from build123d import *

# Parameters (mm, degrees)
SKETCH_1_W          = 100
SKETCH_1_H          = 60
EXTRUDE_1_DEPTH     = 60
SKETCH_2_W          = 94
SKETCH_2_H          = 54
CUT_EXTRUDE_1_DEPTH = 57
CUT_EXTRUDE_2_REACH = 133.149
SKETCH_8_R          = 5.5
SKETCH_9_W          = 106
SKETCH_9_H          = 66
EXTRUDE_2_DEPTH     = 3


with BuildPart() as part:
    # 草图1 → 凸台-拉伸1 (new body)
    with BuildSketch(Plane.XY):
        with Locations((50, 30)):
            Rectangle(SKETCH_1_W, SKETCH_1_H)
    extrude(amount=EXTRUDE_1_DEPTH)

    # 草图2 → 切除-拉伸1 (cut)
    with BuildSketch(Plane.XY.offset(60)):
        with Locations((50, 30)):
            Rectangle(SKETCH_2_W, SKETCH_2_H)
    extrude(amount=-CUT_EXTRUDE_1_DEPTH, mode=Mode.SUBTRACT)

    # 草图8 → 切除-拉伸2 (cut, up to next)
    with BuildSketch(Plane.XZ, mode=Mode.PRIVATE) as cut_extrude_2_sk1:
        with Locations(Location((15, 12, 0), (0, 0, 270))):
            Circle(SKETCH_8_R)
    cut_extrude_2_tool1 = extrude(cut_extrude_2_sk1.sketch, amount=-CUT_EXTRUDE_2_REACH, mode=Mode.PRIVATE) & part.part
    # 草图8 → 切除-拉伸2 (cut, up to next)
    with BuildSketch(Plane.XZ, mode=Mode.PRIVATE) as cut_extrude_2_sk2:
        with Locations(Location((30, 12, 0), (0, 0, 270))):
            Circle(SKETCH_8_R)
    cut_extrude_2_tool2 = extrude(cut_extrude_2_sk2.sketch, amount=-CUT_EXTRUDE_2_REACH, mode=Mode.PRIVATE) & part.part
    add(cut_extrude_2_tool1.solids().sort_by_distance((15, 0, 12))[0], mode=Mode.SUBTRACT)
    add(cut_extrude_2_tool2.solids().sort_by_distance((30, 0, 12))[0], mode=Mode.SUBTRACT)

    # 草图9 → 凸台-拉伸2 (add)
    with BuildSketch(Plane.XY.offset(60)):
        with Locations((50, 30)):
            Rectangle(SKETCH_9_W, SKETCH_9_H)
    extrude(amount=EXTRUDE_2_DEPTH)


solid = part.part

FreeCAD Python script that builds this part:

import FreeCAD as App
import Part
import Sketcher
Q = App.Units.Quantity

doc = App.newDocument("Part")
body = doc.addObject("PartDesign::Body", "Body")

# Sketch on XY plane
sketch1 = body.newObject("Sketcher::SketchObject", "Sketch")
sketch1.AttachmentSupport = (doc.getObject("XY_Plane"), [""])
sketch1.MapMode = "FlatFace"
sketch1.addGeometry(Part.LineSegment(App.Vector(0, 60, 0), App.Vector(0, 0, 0)), False)
sketch1.addGeometry(Part.LineSegment(App.Vector(0, 0, 0), App.Vector(100, 0, 0)), False)
sketch1.addGeometry(Part.LineSegment(App.Vector(100, 0, 0), App.Vector(100, 60, 0)), False)
sketch1.addGeometry(Part.LineSegment(App.Vector(100, 60, 0), App.Vector(0, 60, 0)), False)
sketch1.addConstraint(Sketcher.Constraint("Coincident", 0, 2, 1, 1))
sketch1.addConstraint(Sketcher.Constraint("Coincident", 1, 2, 2, 1))
sketch1.addConstraint(Sketcher.Constraint("Coincident", 2, 2, 3, 1))
sketch1.addConstraint(Sketcher.Constraint("Coincident", 3, 2, 0, 1))
sketch1.addConstraint(Sketcher.Constraint("Vertical", 0))
sketch1.addConstraint(Sketcher.Constraint("Horizontal", 1))
sketch1.addConstraint(Sketcher.Constraint("Vertical", 2))
sketch1.addConstraint(Sketcher.Constraint("Horizontal", 3))
sketch1.addConstraint(Sketcher.Constraint("Coincident", 0, 2, -1, 1))
sketch1.addConstraint(Sketcher.Constraint("DistanceX", 1, 1, 1, 2, Q("100 mm")))
sketch1.addConstraint(Sketcher.Constraint("DistanceY", 0, 2, 0, 1, Q("60 mm")))
pad1 = body.newObject("PartDesign::Pad", "Pad")
pad1.Profile = sketch1
pad1.Length = 60

# Sketch on XY plane
sketch2 = body.newObject("Sketcher::SketchObject", "Sketch001")
sketch2.AttachmentSupport = (doc.getObject("XY_Plane"), [""])
sketch2.MapMode = "FlatFace"
sketch2.AttachmentOffset = App.Placement(App.Vector(0, 0, 60), App.Rotation())
sketch2.addGeometry(Part.LineSegment(App.Vector(3, 57, 0), App.Vector(3, 3, 0)), False)
sketch2.addGeometry(Part.LineSegment(App.Vector(3, 3, 0), App.Vector(97, 3, 0)), False)
sketch2.addGeometry(Part.LineSegment(App.Vector(97, 3, 0), App.Vector(97, 57, 0)), False)
sketch2.addGeometry(Part.LineSegment(App.Vector(97, 57, 0), App.Vector(3, 57, 0)), False)
sketch2.addConstraint(Sketcher.Constraint("Coincident", 0, 2, 1, 1))
sketch2.addConstraint(Sketcher.Constraint("Coincident", 1, 2, 2, 1))
sketch2.addConstraint(Sketcher.Constraint("Coincident", 2, 2, 3, 1))
sketch2.addConstraint(Sketcher.Constraint("Coincident", 3, 2, 0, 1))
sketch2.addConstraint(Sketcher.Constraint("Vertical", 0))
sketch2.addConstraint(Sketcher.Constraint("Horizontal", 1))
sketch2.addConstraint(Sketcher.Constraint("Vertical", 2))
sketch2.addConstraint(Sketcher.Constraint("Horizontal", 3))
sketch2.addConstraint(Sketcher.Constraint("DistanceX", 1, 1, 1, 2, Q("94 mm")))
sketch2.addConstraint(Sketcher.Constraint("DistanceY", 0, 2, 0, 1, Q("54 mm")))
sketch2.addConstraint(Sketcher.Constraint("DistanceX", -1, 1, 0, 2, Q("3 mm")))
sketch2.addConstraint(Sketcher.Constraint("DistanceY", -1, 1, 0, 2, Q("3 mm")))
pocket1 = body.newObject("PartDesign::Pocket", "Pocket")
pocket1.Profile = sketch2
pocket1.Length = 57

# Sketch on XZ plane
sketch3 = body.newObject("Sketcher::SketchObject", "Sketch002")
sketch3.AttachmentSupport = (doc.getObject("XZ_Plane"), [""])
sketch3.MapMode = "FlatFace"
sketch3.addGeometry(Part.Circle(App.Vector(15, 12, 0), App.Vector(0, 0, 1), 5.5), False)
sketch3.addConstraint(Sketcher.Constraint("Diameter", 0, Q("11 mm")))
sketch3.addConstraint(Sketcher.Constraint("DistanceX", -1, 1, 0, 3, Q("15 mm")))
sketch3.addConstraint(Sketcher.Constraint("DistanceY", -1, 1, 0, 3, Q("12 mm")))
pocket2 = body.newObject("PartDesign::Pocket", "Pocket001")
pocket2.Profile = sketch3
pocket2.Type = "UpToFirst"

# Sketch on XZ plane
sketch4 = body.newObject("Sketcher::SketchObject", "Sketch003")
sketch4.AttachmentSupport = (doc.getObject("XZ_Plane"), [""])
sketch4.MapMode = "FlatFace"
sketch4.addGeometry(Part.Circle(App.Vector(30, 12, 0), App.Vector(0, 0, 1), 5.5), False)
sketch4.addConstraint(Sketcher.Constraint("Diameter", 0, Q("11 mm")))
sketch4.addConstraint(Sketcher.Constraint("DistanceX", -1, 1, 0, 3, Q("30 mm")))
sketch4.addConstraint(Sketcher.Constraint("DistanceY", -1, 1, 0, 3, Q("12 mm")))
pocket3 = body.newObject("PartDesign::Pocket", "Pocket002")
pocket3.Profile = sketch4
pocket3.Type = "UpToFirst"

# Sketch on XY plane
sketch5 = body.newObject("Sketcher::SketchObject", "Sketch004")
sketch5.AttachmentSupport = (doc.getObject("XY_Plane"), [""])
sketch5.MapMode = "FlatFace"
sketch5.AttachmentOffset = App.Placement(App.Vector(0, 0, 60), App.Rotation())
sketch5.addGeometry(Part.LineSegment(App.Vector(-3, 63, 0), App.Vector(-3, -3, 0)), False)
sketch5.addGeometry(Part.LineSegment(App.Vector(-3, -3, 0), App.Vector(103, -3, 0)), False)
sketch5.addGeometry(Part.LineSegment(App.Vector(103, -3, 0), App.Vector(103, 63, 0)), False)
sketch5.addGeometry(Part.LineSegment(App.Vector(103, 63, 0), App.Vector(-3, 63, 0)), False)
sketch5.addConstraint(Sketcher.Constraint("Coincident", 0, 2, 1, 1))
sketch5.addConstraint(Sketcher.Constraint("Coincident", 1, 2, 2, 1))
sketch5.addConstraint(Sketcher.Constraint("Coincident", 2, 2, 3, 1))
sketch5.addConstraint(Sketcher.Constraint("Coincident", 3, 2, 0, 1))
sketch5.addConstraint(Sketcher.Constraint("Vertical", 0))
sketch5.addConstraint(Sketcher.Constraint("Horizontal", 1))
sketch5.addConstraint(Sketcher.Constraint("Vertical", 2))
sketch5.addConstraint(Sketcher.Constraint("Horizontal", 3))
sketch5.addConstraint(Sketcher.Constraint("DistanceX", 1, 1, 1, 2, Q("106 mm")))
sketch5.addConstraint(Sketcher.Constraint("DistanceY", 0, 2, 0, 1, Q("66 mm")))
sketch5.addConstraint(Sketcher.Constraint("DistanceX", 0, 2, -1, 1, Q("3 mm")))
sketch5.addConstraint(Sketcher.Constraint("DistanceY", 0, 2, -1, 1, Q("3 mm")))
pad2 = body.newObject("PartDesign::Pad", "Pad001")
pad2.Profile = sketch5
pad2.Length = 3

doc.recompute()
